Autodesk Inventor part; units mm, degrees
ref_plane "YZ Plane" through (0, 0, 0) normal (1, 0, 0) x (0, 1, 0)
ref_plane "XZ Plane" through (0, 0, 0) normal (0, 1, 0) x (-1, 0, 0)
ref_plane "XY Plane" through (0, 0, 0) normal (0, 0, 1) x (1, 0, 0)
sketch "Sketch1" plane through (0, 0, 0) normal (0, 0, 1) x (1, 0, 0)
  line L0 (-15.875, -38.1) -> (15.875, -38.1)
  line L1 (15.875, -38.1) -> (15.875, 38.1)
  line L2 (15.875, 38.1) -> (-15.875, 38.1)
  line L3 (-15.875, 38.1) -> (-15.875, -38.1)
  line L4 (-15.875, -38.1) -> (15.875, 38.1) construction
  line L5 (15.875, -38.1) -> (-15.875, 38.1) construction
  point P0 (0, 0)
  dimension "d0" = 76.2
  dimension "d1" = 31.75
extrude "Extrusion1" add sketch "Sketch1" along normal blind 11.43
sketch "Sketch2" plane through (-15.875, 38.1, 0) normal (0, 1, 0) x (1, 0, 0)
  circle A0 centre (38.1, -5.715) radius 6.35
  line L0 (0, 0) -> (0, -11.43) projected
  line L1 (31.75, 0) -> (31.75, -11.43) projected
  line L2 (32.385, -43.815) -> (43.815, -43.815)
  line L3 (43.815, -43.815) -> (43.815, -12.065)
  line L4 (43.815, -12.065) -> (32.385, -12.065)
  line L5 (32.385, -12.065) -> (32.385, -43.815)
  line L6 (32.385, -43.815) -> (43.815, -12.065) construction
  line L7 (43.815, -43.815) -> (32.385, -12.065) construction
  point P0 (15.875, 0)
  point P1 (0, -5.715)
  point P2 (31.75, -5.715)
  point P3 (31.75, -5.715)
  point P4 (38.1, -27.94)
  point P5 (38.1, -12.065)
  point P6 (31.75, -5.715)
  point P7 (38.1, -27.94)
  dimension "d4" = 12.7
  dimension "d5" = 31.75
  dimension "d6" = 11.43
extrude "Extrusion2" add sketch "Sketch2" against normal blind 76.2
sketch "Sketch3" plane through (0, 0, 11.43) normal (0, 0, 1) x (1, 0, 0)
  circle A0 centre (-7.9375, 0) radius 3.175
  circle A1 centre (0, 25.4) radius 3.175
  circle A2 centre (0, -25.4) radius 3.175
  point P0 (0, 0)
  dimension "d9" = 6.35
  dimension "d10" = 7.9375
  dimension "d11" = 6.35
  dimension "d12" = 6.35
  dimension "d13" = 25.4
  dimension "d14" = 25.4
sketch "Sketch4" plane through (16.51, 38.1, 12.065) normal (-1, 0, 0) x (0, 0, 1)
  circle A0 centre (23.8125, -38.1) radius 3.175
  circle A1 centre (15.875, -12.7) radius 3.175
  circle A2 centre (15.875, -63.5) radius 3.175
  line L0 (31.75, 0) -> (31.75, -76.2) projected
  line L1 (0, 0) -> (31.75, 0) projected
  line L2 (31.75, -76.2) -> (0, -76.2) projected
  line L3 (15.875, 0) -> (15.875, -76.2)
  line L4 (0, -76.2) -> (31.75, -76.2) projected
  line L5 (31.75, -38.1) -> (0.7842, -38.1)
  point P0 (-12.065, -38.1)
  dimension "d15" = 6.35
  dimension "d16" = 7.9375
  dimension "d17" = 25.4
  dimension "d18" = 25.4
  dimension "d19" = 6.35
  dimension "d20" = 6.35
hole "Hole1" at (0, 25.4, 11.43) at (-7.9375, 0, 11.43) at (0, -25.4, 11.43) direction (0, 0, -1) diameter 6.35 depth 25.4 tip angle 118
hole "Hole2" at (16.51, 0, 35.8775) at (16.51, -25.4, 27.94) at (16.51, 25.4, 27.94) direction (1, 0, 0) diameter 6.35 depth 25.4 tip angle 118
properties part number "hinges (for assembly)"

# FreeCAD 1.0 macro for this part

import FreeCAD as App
import Part
import Sketcher
from FreeCAD import Vector
Q = App.Units.Quantity


def add_polygon(sketch, points):
    """Adds a closed chain of lines whose ends are joined by coincident constraints."""
    first, n = sketch.GeometryCount, len(points)
    for a, b in zip(points, points[1:] + points[:1]):
        sketch.addGeometry(Part.LineSegment(App.Vector(*a, 0), App.Vector(*b, 0)), False)
    for i in range(n):
        sketch.addConstraint(Sketcher.Constraint("Coincident", first + i, 2, first + (i + 1) % n, 1))

doc = App.newDocument("Part")
body = doc.addObject("PartDesign::Body", "Body")
body.AllowCompound = True

# Sketch on XY plane
sketch1 = body.newObject("Sketcher::SketchObject", "Sketch")
sketch1.AttachmentSupport = (doc.getObject("XY_Plane"), [""])
sketch1.MapMode = "FlatFace"
add_polygon(sketch1, [(-15.875, 38.1), (-15.875, -38.1), (15.875, -38.1), (15.875, 38.1)])  # lines 0-3
sketch1.addConstraint([
    Sketcher.Constraint("Vertical", 0),
    Sketcher.Constraint("Horizontal", 1),
    Sketcher.Constraint("Vertical", 2),
    Sketcher.Constraint("Horizontal", 3),
    Sketcher.Constraint("Symmetric", 0, 2, 2, 2, -1, 1),
    Sketcher.Constraint("DistanceY", 0, 2, 0, 1, Q("3 in")),
    Sketcher.Constraint("DistanceX", 1, 1, 1, 2, Q("1.25 in")),
])
pad1 = body.newObject("PartDesign::Pad", "Pad")
pad1.Profile = sketch1
pad1.Length = Q("0.45 in")

# Sketch on XZ plane
sketch2 = body.newObject("Sketcher::SketchObject", "Sketch001")
sketch2.AttachmentSupport = (doc.getObject("XZ_Plane"), [""])
sketch2.MapMode = "FlatFace"
sketch2.AttachmentOffset = App.Placement(Vector(0, 0, -1.5 * 25.4), App.Rotation())
sketch2.addGeometry(Part.Circle(Vector(22.225, 5.715, 0), Vector(0, 0, 1), 6.35), False)  # 0
add_polygon(sketch2, [(27.94, 12.065), (22.225, 12.065), (16.51, 12.065), (16.51, 43.815), (27.94, 43.815)])  # lines 1-5
sketch2.addConstraint([
    Sketcher.Constraint("Horizontal", 1),
    Sketcher.Constraint("Horizontal", 2),
    Sketcher.Constraint("Vertical", 3),
    Sketcher.Constraint("Horizontal", 4),
    Sketcher.Constraint("Vertical", 5),
    Sketcher.Constraint("Vertical", 0, 3, 1, 2),
    Sketcher.Constraint("Equal", 1, 2),
    Sketcher.Constraint("Diameter", 0, Q("0.5 in")),
    Sketcher.Constraint("DistanceX", 4, 1, 4, 2, Q("0.45 in")),
    Sketcher.Constraint("DistanceY", 3, 1, 3, 2, Q("1.25 in")),
    Sketcher.Constraint("DistanceX", -1, 1, 4, 2, Q("1.1 in")),
    Sketcher.Constraint("DistanceY", 0, 3, 3, 2, Q("1.5 in")),
    Sketcher.Constraint("DistanceY", -1, 1, 0, 3, Q("0.225 in")),
])
pad2 = body.newObject("PartDesign::Pad", "Pad001")
pad2.Profile = sketch2
pad2.Length = Q("3 in")

# Sketch on XY plane
sketch3 = body.newObject("Sketcher::SketchObject", "Sketch002")
sketch3.AttachmentSupport = (doc.getObject("XY_Plane"), [""])
sketch3.MapMode = "FlatFace"
sketch3.AttachmentOffset = App.Placement(Vector(0, 0, 0.45 * 25.4), App.Rotation())
sketch3.addGeometry([
    Part.Circle(Vector(0, 25.4, 0), Vector(0, 0, 1), 3.175),
    Part.Circle(Vector(-7.9375, 0, 0), Vector(0, 0, 1), 3.175),
    Part.Circle(Vector(0, -25.4, 0), Vector(0, 0, 1), 3.175),
], False)
sketch3.addConstraint([
    Sketcher.Constraint("Equal", 0, 1),
    Sketcher.Constraint("Equal", 1, 2),
    Sketcher.Constraint("Symmetric", 0, 3, 2, 3, -1, 1),
    Sketcher.Constraint("PointOnObject", 0, 3, -2),
    Sketcher.Constraint("PointOnObject", 1, 3, -1),
    Sketcher.Constraint("Diameter", 0, Q("0.25 in")),
    Sketcher.Constraint("DistanceY", -1, 1, 0, 3, Q("1 in")),
    Sketcher.Constraint("DistanceX", 1, 3, -1, 1, Q("0.3125 in")),
])
doc.recompute()
hole = body.newObject("PartDesign::Hole", "Hole")
hole.Profile = sketch3
hole.ThreadType = "None"
hole.Diameter = Q("0.25 in")
hole.DepthType = "Dimension"
hole.Depth = Q("1 in")
hole.DrillPoint = "Angled"
hole.DrillPointAngle = 118

# Sketch on YZ plane
sketch4 = body.newObject("Sketcher::SketchObject", "Sketch003")
sketch4.AttachmentSupport = (doc.getObject("YZ_Plane"), [""])
sketch4.MapMode = "FlatFace"
sketch4.AttachmentOffset = App.Placement(Vector(0, 0, 0.65 * 25.4), App.Rotation())
sketch4.addGeometry([
    Part.Circle(Vector(0, 35.8775, 0), Vector(0, 0, 1), 3.175),
    Part.Circle(Vector(-25.4, 27.94, 0), Vector(0, 0, 1), 3.175),
    Part.Circle(Vector(25.4, 27.94, 0), Vector(0, 0, 1), 3.175),
], False)
sketch4.addConstraint([
    Sketcher.Constraint("Equal", 0, 1),
    Sketcher.Constraint("Equal", 1, 2),
    Sketcher.Constraint("Symmetric", 1, 3, 2, 3, -2),
    Sketcher.Constraint("PointOnObject", 0, 3, -2),
    Sketcher.Constraint("Diameter", 0, Q("0.25 in")),
    Sketcher.Constraint("DistanceX", 1, 3, -1, 1, Q("1 in")),
    Sketcher.Constraint("DistanceY", -1, 1, 1, 3, Q("1.1 in")),
    Sketcher.Constraint("DistanceY", 1, 3, 0, 3, Q("0.3125 in")),
])
doc.recompute()
hole2 = body.newObject("PartDesign::Hole", "Hole001")
hole2.Profile = sketch4
hole2.ThreadType = "None"
hole2.Diameter = Q("0.25 in")
hole2.DepthType = "Dimension"
hole2.Depth = Q("1 in")
hole2.DrillPoint = "Angled"
hole2.DrillPointAngle = 118
hole2.Reversed = True

doc.recompute()
